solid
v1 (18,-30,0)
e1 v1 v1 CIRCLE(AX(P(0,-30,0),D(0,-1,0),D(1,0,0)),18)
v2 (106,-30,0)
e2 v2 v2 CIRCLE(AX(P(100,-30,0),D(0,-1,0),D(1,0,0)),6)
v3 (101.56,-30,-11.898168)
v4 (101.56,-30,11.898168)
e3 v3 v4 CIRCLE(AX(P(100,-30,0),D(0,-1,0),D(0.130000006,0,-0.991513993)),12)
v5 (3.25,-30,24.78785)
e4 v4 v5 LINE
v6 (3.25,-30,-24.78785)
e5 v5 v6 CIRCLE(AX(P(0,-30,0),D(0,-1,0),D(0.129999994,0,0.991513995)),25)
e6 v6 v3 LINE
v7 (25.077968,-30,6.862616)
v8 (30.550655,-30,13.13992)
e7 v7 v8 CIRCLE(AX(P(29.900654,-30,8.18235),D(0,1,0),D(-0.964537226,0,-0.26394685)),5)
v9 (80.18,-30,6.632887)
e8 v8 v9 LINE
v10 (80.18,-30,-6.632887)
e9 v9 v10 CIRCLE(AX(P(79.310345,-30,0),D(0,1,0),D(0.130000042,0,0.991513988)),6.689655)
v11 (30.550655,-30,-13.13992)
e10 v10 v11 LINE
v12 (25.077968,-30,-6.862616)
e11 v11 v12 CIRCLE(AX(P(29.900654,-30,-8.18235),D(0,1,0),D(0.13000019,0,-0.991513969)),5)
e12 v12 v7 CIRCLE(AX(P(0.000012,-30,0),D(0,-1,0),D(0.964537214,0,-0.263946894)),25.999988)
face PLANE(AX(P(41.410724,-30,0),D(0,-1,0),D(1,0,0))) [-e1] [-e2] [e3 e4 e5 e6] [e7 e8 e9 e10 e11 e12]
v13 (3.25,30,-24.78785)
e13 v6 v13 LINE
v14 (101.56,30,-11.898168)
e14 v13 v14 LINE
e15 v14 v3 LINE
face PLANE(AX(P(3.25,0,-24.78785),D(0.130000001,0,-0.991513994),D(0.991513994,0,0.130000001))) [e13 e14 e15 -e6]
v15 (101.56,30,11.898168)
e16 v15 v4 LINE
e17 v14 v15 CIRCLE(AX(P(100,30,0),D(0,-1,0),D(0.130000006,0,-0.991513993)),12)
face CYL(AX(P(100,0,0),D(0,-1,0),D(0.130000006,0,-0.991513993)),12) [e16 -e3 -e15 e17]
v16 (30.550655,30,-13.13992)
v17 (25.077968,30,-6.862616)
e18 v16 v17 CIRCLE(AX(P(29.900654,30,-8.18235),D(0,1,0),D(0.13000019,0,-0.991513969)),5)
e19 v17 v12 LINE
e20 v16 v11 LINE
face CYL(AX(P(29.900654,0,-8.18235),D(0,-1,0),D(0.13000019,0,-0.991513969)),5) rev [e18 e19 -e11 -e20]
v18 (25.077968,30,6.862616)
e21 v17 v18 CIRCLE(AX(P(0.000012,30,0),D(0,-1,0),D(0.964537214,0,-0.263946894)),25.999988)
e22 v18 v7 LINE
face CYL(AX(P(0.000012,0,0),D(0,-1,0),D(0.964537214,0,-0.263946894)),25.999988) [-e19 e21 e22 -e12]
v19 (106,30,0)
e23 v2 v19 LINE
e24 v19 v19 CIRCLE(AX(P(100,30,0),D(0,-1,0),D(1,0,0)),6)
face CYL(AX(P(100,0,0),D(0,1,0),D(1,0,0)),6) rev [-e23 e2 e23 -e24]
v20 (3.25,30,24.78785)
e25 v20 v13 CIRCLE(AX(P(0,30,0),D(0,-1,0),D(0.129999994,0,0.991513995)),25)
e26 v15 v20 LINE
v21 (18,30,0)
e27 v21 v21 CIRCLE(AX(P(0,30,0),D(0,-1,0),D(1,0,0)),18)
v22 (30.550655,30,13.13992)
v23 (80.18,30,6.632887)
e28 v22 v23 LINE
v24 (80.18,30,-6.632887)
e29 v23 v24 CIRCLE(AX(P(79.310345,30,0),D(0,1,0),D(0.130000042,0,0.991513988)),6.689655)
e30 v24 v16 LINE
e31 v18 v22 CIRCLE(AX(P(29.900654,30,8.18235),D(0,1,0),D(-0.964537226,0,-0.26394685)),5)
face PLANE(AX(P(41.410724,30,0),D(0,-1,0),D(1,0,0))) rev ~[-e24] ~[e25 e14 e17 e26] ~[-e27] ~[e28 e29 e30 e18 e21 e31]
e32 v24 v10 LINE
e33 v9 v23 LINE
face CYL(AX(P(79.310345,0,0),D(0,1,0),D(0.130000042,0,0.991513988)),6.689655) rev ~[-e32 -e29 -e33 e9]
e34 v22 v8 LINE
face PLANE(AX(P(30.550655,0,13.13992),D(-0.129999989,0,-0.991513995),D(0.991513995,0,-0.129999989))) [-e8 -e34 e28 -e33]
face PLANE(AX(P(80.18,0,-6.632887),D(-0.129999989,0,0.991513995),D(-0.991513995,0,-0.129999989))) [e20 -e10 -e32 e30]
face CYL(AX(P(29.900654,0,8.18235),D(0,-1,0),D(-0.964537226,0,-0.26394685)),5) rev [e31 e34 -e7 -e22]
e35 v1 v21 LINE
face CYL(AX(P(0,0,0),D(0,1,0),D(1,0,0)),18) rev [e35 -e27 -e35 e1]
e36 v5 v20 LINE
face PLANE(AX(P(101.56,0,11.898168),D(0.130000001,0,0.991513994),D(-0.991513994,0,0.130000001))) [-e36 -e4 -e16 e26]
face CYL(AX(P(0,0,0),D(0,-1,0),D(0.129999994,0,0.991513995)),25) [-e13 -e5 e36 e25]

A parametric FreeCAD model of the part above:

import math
import FreeCAD as App
import Part
import Sketcher
from FreeCAD import Vector

doc = App.newDocument("Part")
body = doc.addObject("PartDesign::Body", "Body")

sketch1 = body.newObject("Sketcher::SketchObject", "Sketch")
sketch1.AttachmentSupport = (doc.getObject("XZ_Plane"), [""])
sketch1.MapMode = "FlatFace"
sketch1.addGeometry([
    Part.LineSegment(Vector(3.2, -24.8, 0), Vector(101.6, -11.9, 0)),
    Part.ArcOfCircle(Part.Circle(Vector(100, 0, 0), Vector(0, 0, 1), 12), math.radians(-83), math.radians(83)),
    Part.LineSegment(Vector(101.6, 11.9, 0), Vector(3.2, 24.8, 0)),
    Part.ArcOfCircle(Part.Circle(Vector(0, 0, 0), Vector(0, 0, 1), 25), math.radians(83), math.radians(277)),
    Part.Circle(Vector(0, 0, 0), Vector(0, 0, 1), 18),
    Part.ArcOfCircle(Part.Circle(Vector(0, 0, 0), Vector(0, 0, 1), 26), math.radians(-15), math.radians(15)),
    Part.ArcOfCircle(Part.Circle(Vector(29.9, 8.2, 0), Vector(0, 0, 1), 5), math.radians(83), math.radians(195)),
    Part.LineSegment(Vector(30.6, 13.1, 0), Vector(80.2, 6.6, 0)),
    Part.ArcOfCircle(Part.Circle(Vector(79.3, 0, 0), Vector(0, 0, 1), 6.7), math.radians(-83), math.radians(83)),
    Part.LineSegment(Vector(80.2, -6.6, 0), Vector(30.6, -13.1, 0)),
    Part.ArcOfCircle(Part.Circle(Vector(29.9, -8.2, 0), Vector(0, 0, 1), 5), math.radians(165), math.radians(277)),
    Part.Circle(Vector(100, 0, 0), Vector(0, 0, 1), 6),
], False)
sketch1.addConstraint([
    Sketcher.Constraint("Tangent", 0, 2, 1, 1),
    Sketcher.Constraint("Tangent", 1, 2, 2, 1),
    Sketcher.Constraint("Tangent", 2, 2, 3, 1),
    Sketcher.Constraint("Tangent", 3, 2, 0, 1),
    Sketcher.Constraint("Tangent", 5, 2, 6, 2),
    Sketcher.Constraint("Tangent", 6, 1, 7, 1),
    Sketcher.Constraint("Tangent", 7, 2, 8, 2),
    Sketcher.Constraint("Tangent", 8, 1, 9, 1),
    Sketcher.Constraint("Tangent", 9, 2, 10, 2),
    Sketcher.Constraint("Tangent", 10, 1, 5, 1),
    Sketcher.Constraint("Coincident", 3, 3, -1, 1),
    Sketcher.Constraint("Coincident", 4, 3, -1, 1),
    Sketcher.Constraint("Coincident", 11, 3, 1, 3),
    Sketcher.Constraint("Equal", 6, 10),
    Sketcher.Constraint("Symmetric", 6, 3, 10, 3, -1),
    Sketcher.Constraint("PointOnObject", 1, 3, -1),
    Sketcher.Constraint("PointOnObject", 8, 3, -1),
    Sketcher.Constraint("Parallel", 2, 7),
    Sketcher.Constraint("Diameter", 4, 36.0),
    Sketcher.Constraint("Diameter", 11, 12.0),
    Sketcher.Constraint("Radius", 1, 12.0),
    Sketcher.Constraint("Radius", 3, 25.0),
    Sketcher.Constraint("Radius", 6, 5.0),
    Sketcher.Constraint("DistanceX", -1, 1, 1, 3, 100.0),
    Sketcher.Constraint("DistanceX", -1, 1, 7, 2, 80.18),
    Sketcher.Constraint("Radius", 5, 25.999988),
    Sketcher.Constraint("Radius", 8, 6.689655),
    Sketcher.Constraint("DistanceY", 10, 3, 6, 3, 16.3647),
])
pad1 = body.newObject("PartDesign::Pad", "Pad")
pad1.Profile = sketch1
pad1.Length = 60
pad1.Midplane = True

doc.recompute()
